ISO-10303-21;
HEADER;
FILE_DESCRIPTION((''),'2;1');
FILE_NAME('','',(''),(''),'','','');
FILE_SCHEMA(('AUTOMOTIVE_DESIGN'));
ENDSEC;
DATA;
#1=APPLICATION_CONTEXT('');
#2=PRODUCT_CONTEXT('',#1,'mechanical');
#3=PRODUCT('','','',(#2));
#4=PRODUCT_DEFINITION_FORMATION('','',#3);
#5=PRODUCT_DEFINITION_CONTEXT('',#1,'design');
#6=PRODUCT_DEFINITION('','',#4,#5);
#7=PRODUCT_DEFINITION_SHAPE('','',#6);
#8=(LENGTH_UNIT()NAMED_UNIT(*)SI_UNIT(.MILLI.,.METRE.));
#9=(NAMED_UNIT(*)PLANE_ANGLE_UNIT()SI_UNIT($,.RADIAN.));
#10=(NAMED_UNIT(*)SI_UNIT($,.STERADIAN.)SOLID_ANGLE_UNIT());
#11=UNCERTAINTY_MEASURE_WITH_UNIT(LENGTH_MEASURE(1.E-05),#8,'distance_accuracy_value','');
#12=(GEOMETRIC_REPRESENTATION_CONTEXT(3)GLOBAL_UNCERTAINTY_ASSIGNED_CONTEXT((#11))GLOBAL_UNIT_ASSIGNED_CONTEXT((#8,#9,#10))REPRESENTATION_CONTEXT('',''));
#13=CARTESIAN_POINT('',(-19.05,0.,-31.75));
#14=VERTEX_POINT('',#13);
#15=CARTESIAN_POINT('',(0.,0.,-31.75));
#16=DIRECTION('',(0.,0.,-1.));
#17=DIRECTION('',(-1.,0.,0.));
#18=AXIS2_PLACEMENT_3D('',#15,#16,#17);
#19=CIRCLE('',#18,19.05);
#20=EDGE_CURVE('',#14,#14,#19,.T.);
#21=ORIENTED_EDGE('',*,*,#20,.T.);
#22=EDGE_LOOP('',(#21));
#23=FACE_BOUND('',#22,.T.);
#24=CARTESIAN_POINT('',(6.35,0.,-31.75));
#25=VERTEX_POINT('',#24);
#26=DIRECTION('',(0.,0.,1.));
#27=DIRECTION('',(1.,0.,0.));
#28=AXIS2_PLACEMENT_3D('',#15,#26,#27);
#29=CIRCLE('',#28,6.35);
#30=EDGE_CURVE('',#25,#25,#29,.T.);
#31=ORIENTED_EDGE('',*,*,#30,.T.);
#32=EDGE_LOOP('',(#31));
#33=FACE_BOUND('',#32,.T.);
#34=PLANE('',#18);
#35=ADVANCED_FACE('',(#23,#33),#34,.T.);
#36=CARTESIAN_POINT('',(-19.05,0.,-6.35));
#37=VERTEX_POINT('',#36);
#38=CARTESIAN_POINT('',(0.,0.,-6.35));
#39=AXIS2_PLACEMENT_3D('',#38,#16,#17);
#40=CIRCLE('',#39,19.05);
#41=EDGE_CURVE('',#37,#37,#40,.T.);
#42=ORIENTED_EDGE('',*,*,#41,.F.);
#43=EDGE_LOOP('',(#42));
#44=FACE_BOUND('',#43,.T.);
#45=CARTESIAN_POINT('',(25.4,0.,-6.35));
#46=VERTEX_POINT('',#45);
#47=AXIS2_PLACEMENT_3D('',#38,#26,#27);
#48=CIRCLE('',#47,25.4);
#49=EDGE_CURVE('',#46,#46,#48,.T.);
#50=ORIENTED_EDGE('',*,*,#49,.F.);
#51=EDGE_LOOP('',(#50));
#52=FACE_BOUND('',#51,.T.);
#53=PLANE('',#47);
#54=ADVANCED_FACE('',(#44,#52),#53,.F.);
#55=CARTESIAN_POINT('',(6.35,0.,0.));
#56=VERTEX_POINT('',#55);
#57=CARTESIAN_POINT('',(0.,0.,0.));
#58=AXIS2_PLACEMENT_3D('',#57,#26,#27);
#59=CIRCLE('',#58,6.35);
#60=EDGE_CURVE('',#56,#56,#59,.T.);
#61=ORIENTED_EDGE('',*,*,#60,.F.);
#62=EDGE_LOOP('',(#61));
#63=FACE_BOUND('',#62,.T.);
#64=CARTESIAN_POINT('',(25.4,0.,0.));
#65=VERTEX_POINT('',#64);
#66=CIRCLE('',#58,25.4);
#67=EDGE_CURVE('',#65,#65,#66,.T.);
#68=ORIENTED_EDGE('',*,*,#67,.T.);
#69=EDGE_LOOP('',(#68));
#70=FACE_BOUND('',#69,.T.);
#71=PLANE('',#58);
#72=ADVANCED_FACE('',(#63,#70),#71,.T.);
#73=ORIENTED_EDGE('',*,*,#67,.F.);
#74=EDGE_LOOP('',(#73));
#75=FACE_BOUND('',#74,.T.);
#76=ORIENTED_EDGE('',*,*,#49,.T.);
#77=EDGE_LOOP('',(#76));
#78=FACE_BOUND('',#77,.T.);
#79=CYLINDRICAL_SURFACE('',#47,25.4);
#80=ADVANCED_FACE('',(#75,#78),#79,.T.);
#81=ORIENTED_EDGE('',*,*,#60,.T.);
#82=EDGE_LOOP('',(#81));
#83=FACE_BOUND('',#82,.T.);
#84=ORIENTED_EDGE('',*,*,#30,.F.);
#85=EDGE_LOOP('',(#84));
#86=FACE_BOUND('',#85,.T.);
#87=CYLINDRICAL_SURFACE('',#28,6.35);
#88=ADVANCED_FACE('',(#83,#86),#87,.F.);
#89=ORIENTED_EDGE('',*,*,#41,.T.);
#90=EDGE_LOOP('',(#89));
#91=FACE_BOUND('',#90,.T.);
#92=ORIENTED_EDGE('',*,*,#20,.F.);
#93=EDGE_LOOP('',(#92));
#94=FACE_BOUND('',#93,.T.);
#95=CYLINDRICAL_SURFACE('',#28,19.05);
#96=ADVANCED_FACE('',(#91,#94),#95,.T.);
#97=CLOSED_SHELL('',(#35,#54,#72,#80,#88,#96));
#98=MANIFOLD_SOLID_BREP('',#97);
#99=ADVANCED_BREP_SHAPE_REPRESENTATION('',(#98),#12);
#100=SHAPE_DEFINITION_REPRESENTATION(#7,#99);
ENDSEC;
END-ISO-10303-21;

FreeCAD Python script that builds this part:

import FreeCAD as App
import Part
import Sketcher

V = App.Vector
Q = App.Units.Quantity

doc = App.newDocument("Part")
params = doc.addObject("Spreadsheet::Sheet", "Params")
for row, (alias, value) in enumerate([
    ("sketch1_diameter", "2 in"),
    ("pad1_length", "0.25 in"),
    ("sketch2_diameter", "1.5 in"),
    ("pad2_length", "1 in"),
    ("sketch3_diameter", "0.5 in"),
], start=1):
    params.set(f"A{row}", alias)
    params.set(f"B{row}", "=" + value)
    params.setAlias(f"B{row}", alias)

body = doc.addObject("PartDesign::Body", "Body")

sketch1 = doc.addObject("Sketcher::SketchObject", "Sketch")
body.addObject(sketch1)
sketch1.AttachmentSupport = (doc.XY_Plane, [""])
sketch1.MapMode = "FlatFace"
sketch1.addGeometry(Part.Circle(V(0, 0, 0), V(0, 0, 1), 25.4), False)
sketch1.addConstraint([
    Sketcher.Constraint("Coincident", 0, 3, -1, 1),
    Sketcher.Constraint("Diameter", 0, Q("2 in")),
])
sketch1.setExpression("Constraints[1]", "Params.sketch1_diameter")
pad1 = doc.addObject("PartDesign::Pad", "Pad")
body.addObject(pad1)
pad1.Profile = sketch1
pad1.setExpression("Length", "Params.pad1_length")
pad1.Reversed = True

sketch2 = doc.addObject("Sketcher::SketchObject", "Sketch001")
body.addObject(sketch2)
sketch2.AttachmentSupport = (doc.XY_Plane, [""])
sketch2.MapMode = "FlatFace"
sketch2.AttachmentOffset = App.Placement(V(0, 0, -0.25 * 25.4), App.Rotation())
sketch2.addGeometry(Part.Circle(V(0, 0, 0), V(0, 0, 1), 19.05), False)
sketch2.addConstraint([
    Sketcher.Constraint("Coincident", 0, 3, -1, 1),
    Sketcher.Constraint("Diameter", 0, Q("1.5 in")),
])
sketch2.setExpression("Constraints[1]", "Params.sketch2_diameter")
pad2 = doc.addObject("PartDesign::Pad", "Pad001")
body.addObject(pad2)
pad2.Profile = sketch2
pad2.setExpression("Length", "Params.pad2_length")
pad2.Reversed = True

sketch3 = doc.addObject("Sketcher::SketchObject", "Sketch002")
body.addObject(sketch3)
sketch3.AttachmentSupport = (doc.XY_Plane, [""])
sketch3.MapMode = "FlatFace"
sketch3.addGeometry(Part.Circle(V(0, 0, 0), V(0, 0, 1), 6.35), False)
sketch3.addConstraint([
    Sketcher.Constraint("Coincident", 0, 3, -1, 1),
    Sketcher.Constraint("Diameter", 0, Q("0.5 in")),
])
sketch3.setExpression("Constraints[1]", "Params.sketch3_diameter")
pocket1 = doc.addObject("PartDesign::Pocket", "Pocket")
body.addObject(pocket1)
pocket1.Profile = sketch3
pocket1.Type = "ThroughAll"

doc.recompute()
